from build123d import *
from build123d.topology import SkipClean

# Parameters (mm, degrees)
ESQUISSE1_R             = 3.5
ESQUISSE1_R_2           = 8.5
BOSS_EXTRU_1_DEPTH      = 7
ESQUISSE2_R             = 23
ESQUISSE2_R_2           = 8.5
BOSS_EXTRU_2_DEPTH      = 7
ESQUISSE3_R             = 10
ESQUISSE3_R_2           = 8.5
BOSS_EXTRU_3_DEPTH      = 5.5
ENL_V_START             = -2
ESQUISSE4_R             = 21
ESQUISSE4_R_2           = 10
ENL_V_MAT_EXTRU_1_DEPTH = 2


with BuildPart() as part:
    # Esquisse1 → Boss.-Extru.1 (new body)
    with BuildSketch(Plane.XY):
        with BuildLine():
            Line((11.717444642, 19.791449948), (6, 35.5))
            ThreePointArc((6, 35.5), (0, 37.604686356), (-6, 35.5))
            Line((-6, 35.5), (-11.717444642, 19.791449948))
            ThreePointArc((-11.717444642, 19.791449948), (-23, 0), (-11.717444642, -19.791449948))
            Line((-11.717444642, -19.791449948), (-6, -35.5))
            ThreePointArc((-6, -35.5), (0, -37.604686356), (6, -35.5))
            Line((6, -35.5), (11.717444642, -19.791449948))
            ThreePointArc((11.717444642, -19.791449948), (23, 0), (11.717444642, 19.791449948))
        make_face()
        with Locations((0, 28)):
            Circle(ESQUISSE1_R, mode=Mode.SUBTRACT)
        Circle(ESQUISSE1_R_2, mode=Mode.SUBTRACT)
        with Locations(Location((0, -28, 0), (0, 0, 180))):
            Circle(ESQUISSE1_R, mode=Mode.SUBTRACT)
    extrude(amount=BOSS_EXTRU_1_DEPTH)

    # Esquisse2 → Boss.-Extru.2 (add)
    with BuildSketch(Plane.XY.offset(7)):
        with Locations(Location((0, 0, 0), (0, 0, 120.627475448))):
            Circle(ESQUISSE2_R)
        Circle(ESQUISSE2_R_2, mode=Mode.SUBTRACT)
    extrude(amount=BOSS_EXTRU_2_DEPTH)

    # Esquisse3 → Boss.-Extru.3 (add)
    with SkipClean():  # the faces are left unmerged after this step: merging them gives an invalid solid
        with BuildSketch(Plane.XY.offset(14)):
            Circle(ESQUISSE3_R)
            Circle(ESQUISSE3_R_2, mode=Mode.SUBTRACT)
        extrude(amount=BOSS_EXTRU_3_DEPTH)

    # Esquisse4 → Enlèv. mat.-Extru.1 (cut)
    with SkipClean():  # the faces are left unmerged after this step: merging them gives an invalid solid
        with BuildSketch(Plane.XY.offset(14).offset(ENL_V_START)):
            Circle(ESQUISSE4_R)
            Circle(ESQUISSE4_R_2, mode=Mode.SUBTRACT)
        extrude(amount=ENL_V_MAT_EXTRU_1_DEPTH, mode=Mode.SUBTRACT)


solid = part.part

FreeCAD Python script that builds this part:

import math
import FreeCAD as App
import Part
import Sketcher

V = App.Vector
Q = App.Units.Quantity

doc = App.newDocument("Part")
params = doc.addObject("Spreadsheet::Sheet", "Params")
for row, (alias, value) in enumerate([
    ("sketch1_diameter", "7 mm"),
    ("sketch1_diameter2", "17 mm"),
    ("sketch1_radius", "23 mm"),
    ("pad1_length", "7 mm"),
    ("sketch2_diameter", "46 mm"),
    ("sketch2_diameter2", "17 mm"),
    ("pad2_length", "7 mm"),
    ("sketch3_diameter", "20 mm"),
    ("sketch3_diameter2", "17 mm"),
    ("pad3_length", "5.5 mm"),
    ("sketch4_diameter", "42 mm"),
    ("sketch4_diameter2", "20 mm"),
    ("pocket1_length", "2 mm"),
], start=1):
    params.set(f"A{row}", alias)
    params.set(f"B{row}", "=" + value)
    params.setAlias(f"B{row}", alias)

body = doc.addObject("PartDesign::Body", "Body")

sketch1 = body.newObject("Sketcher::SketchObject", "Sketch")
sketch1.AttachmentSupport = (doc.getObject("XY_Plane"), [""])
sketch1.MapMode = "FlatFace"
sketch1.addGeometry(Part.LineSegment(V(11.717445, 19.79145, 0), V(6, 35.5, 0)), False)
sketch1.addGeometry(Part.ArcOfCircle(Part.Circle(V(0, 28, 0), V(0, 0, 1), 9.604686), math.radians(51.340192), math.radians(128.659808)), False)
sketch1.addGeometry(Part.LineSegment(V(-6, 35.5, 0), V(-11.717445, 19.79145, 0)), False)
sketch1.addGeometry(Part.ArcOfCircle(Part.Circle(V(0, 0, 0), V(0, 0, 1), 23), math.radians(120.627475), math.radians(239.372525)), False)
sketch1.addGeometry(Part.LineSegment(V(-11.717445, -19.79145, 0), V(-6, -35.5, 0)), False)
sketch1.addGeometry(Part.ArcOfCircle(Part.Circle(V(0, -28, 0), V(0, 0, 1), 9.604686), math.radians(-128.659808), math.radians(-51.340192)), False)
sketch1.addGeometry(Part.LineSegment(V(6, -35.5, 0), V(11.717445, -19.79145, 0)), False)
sketch1.addGeometry(Part.ArcOfCircle(Part.Circle(V(0, 0, 0), V(0, 0, 1), 23), math.radians(-59.372525), math.radians(59.372525)), False)
sketch1.addGeometry(Part.Circle(V(0, -28, 0), V(0, 0, 1), 3.5), False)
sketch1.addGeometry(Part.Circle(V(0, 0, 0), V(0, 0, 1), 8.5), False)
sketch1.addGeometry(Part.Circle(V(0, 28, 0), V(0, 0, 1), 3.5), False)
sketch1.addConstraint(Sketcher.Constraint("Coincident", 0, 2, 1, 1))
sketch1.addConstraint(Sketcher.Constraint("Coincident", 1, 2, 2, 1))
sketch1.addConstraint(Sketcher.Constraint("Coincident", 2, 2, 3, 1))
sketch1.addConstraint(Sketcher.Constraint("Coincident", 3, 2, 4, 1))
sketch1.addConstraint(Sketcher.Constraint("Coincident", 4, 2, 5, 1))
sketch1.addConstraint(Sketcher.Constraint("Coincident", 5, 2, 6, 1))
sketch1.addConstraint(Sketcher.Constraint("Coincident", 6, 2, 7, 1))
sketch1.addConstraint(Sketcher.Constraint("Coincident", 7, 2, 0, 1))
sketch1.addConstraint(Sketcher.Constraint("Coincident", 3, 3, -1, 1))
sketch1.addConstraint(Sketcher.Constraint("Coincident", 7, 3, -1, 1))
sketch1.addConstraint(Sketcher.Constraint("Coincident", 9, 3, -1, 1))
sketch1.addConstraint(Sketcher.Constraint("Coincident", 8, 3, 5, 3))
sketch1.addConstraint(Sketcher.Constraint("Coincident", 10, 3, 1, 3))
sketch1.addConstraint(Sketcher.Constraint("Equal", 1, 5))
sketch1.addConstraint(Sketcher.Constraint("Equal", 3, 7))
sketch1.addConstraint(Sketcher.Constraint("Equal", 8, 10))
sketch1.addConstraint(Sketcher.Constraint("Symmetric", 1, 3, 5, 3, -1, 1))
sketch1.addConstraint(Sketcher.Constraint("Symmetric", 0, 2, 1, 2, -2))
sketch1.addConstraint(Sketcher.Constraint("Parallel", 0, 4))
sketch1.addConstraint(Sketcher.Constraint("Parallel", 2, 6))
sketch1.addConstraint(Sketcher.Constraint("Horizontal", 4, 2, 5, 2))
sketch1.addConstraint(Sketcher.Constraint("Horizontal", 3, 2, 6, 2))
sketch1.addConstraint(Sketcher.Constraint("Vertical", 2, 2, 3, 2))
sketch1.addConstraint(Sketcher.Constraint("Diameter", 8, 7.0))
sketch1.addConstraint(Sketcher.Constraint("Diameter", 9, 17.0))
sketch1.addConstraint(Sketcher.Constraint("Radius", 3, 23.0))
sketch1.addConstraint(Sketcher.Constraint("Angle", 0, Q("110 deg")))
sketch1.addConstraint(Sketcher.Constraint("DistanceY", -1, 1, 1, 3, 28.0))
sketch1.addConstraint(Sketcher.Constraint("DistanceX", -1, 1, 0, 2, 6.0))
sketch1.addConstraint(Sketcher.Constraint("DistanceY", -1, 1, 0, 2, 35.5))
sketch1.setExpression("Constraints[23]", "Params.sketch1_diameter")
sketch1.setExpression("Constraints[24]", "Params.sketch1_diameter2")
sketch1.setExpression("Constraints[25]", "Params.sketch1_radius")
pad1 = body.newObject("PartDesign::Pad", "Pad")
pad1.Profile = sketch1
pad1.setExpression("Length", "Params.pad1_length")

sketch2 = body.newObject("Sketcher::SketchObject", "Sketch001")
sketch2.AttachmentSupport = (doc.getObject("XY_Plane"), [""])
sketch2.MapMode = "FlatFace"
sketch2.AttachmentOffset = App.Placement(V(0, 0, 7), App.Rotation())
sketch2.addGeometry(Part.Circle(V(0, 0, 0), V(0, 0, 1), 23), False)
sketch2.addGeometry(Part.Circle(V(0, 0, 0), V(0, 0, 1), 8.5), False)
sketch2.addConstraint(Sketcher.Constraint("Coincident", 0, 3, -1, 1))
sketch2.addConstraint(Sketcher.Constraint("Coincident", 1, 3, -1, 1))
sketch2.addConstraint(Sketcher.Constraint("Diameter", 0, 46.0))
sketch2.addConstraint(Sketcher.Constraint("Diameter", 1, 17.0))
sketch2.setExpression("Constraints[2]", "Params.sketch2_diameter")
sketch2.setExpression("Constraints[3]", "Params.sketch2_diameter2")
pad2 = body.newObject("PartDesign::Pad", "Pad001")
pad2.Profile = sketch2
pad2.setExpression("Length", "Params.pad2_length")

sketch3 = body.newObject("Sketcher::SketchObject", "Sketch002")
sketch3.AttachmentSupport = (doc.getObject("XY_Plane"), [""])
sketch3.MapMode = "FlatFace"
sketch3.AttachmentOffset = App.Placement(V(0, 0, 14), App.Rotation())
sketch3.addGeometry(Part.Circle(V(0, 0, 0), V(0, 0, 1), 10), False)
sketch3.addGeometry(Part.Circle(V(0, 0, 0), V(0, 0, 1), 8.5), False)
sketch3.addConstraint(Sketcher.Constraint("Coincident", 0, 3, -1, 1))
sketch3.addConstraint(Sketcher.Constraint("Coincident", 1, 3, -1, 1))
sketch3.addConstraint(Sketcher.Constraint("Diameter", 0, 20.0))
sketch3.addConstraint(Sketcher.Constraint("Diameter", 1, 17.0))
sketch3.setExpression("Constraints[2]", "Params.sketch3_diameter")
sketch3.setExpression("Constraints[3]", "Params.sketch3_diameter2")
pad3 = body.newObject("PartDesign::Pad", "Pad002")
pad3.Profile = sketch3
pad3.setExpression("Length", "Params.pad3_length")

sketch4 = body.newObject("Sketcher::SketchObject", "Sketch003")
sketch4.AttachmentSupport = (doc.getObject("XY_Plane"), [""])
sketch4.MapMode = "FlatFace"
sketch4.AttachmentOffset = App.Placement(V(0, 0, 12), App.Rotation())
sketch4.addGeometry(Part.Circle(V(0, 0, 0), V(0, 0, 1), 21), False)
sketch4.addGeometry(Part.Circle(V(0, 0, 0), V(0, 0, 1), 10), False)
sketch4.addConstraint(Sketcher.Constraint("Coincident", 0, 3, -1, 1))
sketch4.addConstraint(Sketcher.Constraint("Coincident", 1, 3, -1, 1))
sketch4.addConstraint(Sketcher.Constraint("Diameter", 0, 42.0))
sketch4.addConstraint(Sketcher.Constraint("Diameter", 1, 20.0))
sketch4.setExpression("Constraints[2]", "Params.sketch4_diameter")
sketch4.setExpression("Constraints[3]", "Params.sketch4_diameter2")
pocket1 = body.newObject("PartDesign::Pocket", "Pocket")
pocket1.Profile = sketch4
pocket1.setExpression("Length", "Params.pocket1_length")
pocket1.Reversed = True

doc.recompute()
